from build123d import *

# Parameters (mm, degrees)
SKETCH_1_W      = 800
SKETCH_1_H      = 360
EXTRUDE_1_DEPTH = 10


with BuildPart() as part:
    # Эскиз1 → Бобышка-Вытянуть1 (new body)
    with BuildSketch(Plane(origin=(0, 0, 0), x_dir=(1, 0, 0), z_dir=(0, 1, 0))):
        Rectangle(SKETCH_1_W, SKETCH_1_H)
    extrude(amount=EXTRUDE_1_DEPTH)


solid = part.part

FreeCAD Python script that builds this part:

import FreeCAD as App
import Part
import Sketcher
Q = App.Units.Quantity


def add_polygon(sketch, points):
    """Adds a closed chain of lines whose ends are joined by coincident constraints."""
    first, n = sketch.GeometryCount, len(points)
    for a, b in zip(points, points[1:] + points[:1]):
        sketch.addGeometry(Part.LineSegment(App.Vector(*a, 0), App.Vector(*b, 0)), False)
    for i in range(n):
        sketch.addConstraint(Sketcher.Constraint("Coincident", first + i, 2, first + (i + 1) % n, 1))

doc = App.newDocument("Part")
body = doc.addObject("PartDesign::Body", "Body")

# Sketch on XZ plane
sketch1 = body.newObject("Sketcher::SketchObject", "Sketch")
sketch1.AttachmentSupport = (doc.getObject("XZ_Plane"), [""])
sketch1.MapMode = "FlatFace"
add_polygon(sketch1, [(-400, -180), (-400, 180), (400, 180), (400, -180)])  # lines 0-3
sketch1.addConstraint([
    Sketcher.Constraint("Vertical", 0),
    Sketcher.Constraint("Horizontal", 1),
    Sketcher.Constraint("Vertical", 2),
    Sketcher.Constraint("Horizontal", 3),
    Sketcher.Constraint("Symmetric", 0, 2, 2, 2, -1, 1),
    Sketcher.Constraint("DistanceX", 1, 1, 1, 2, Q("800 mm")),
    Sketcher.Constraint("DistanceY", 0, 1, 0, 2, Q("360 mm")),
])
pad1 = body.newObject("PartDesign::Pad", "Pad")
pad1.Profile = sketch1
pad1.Length = 10
pad1.Reversed = True

doc.recompute()
